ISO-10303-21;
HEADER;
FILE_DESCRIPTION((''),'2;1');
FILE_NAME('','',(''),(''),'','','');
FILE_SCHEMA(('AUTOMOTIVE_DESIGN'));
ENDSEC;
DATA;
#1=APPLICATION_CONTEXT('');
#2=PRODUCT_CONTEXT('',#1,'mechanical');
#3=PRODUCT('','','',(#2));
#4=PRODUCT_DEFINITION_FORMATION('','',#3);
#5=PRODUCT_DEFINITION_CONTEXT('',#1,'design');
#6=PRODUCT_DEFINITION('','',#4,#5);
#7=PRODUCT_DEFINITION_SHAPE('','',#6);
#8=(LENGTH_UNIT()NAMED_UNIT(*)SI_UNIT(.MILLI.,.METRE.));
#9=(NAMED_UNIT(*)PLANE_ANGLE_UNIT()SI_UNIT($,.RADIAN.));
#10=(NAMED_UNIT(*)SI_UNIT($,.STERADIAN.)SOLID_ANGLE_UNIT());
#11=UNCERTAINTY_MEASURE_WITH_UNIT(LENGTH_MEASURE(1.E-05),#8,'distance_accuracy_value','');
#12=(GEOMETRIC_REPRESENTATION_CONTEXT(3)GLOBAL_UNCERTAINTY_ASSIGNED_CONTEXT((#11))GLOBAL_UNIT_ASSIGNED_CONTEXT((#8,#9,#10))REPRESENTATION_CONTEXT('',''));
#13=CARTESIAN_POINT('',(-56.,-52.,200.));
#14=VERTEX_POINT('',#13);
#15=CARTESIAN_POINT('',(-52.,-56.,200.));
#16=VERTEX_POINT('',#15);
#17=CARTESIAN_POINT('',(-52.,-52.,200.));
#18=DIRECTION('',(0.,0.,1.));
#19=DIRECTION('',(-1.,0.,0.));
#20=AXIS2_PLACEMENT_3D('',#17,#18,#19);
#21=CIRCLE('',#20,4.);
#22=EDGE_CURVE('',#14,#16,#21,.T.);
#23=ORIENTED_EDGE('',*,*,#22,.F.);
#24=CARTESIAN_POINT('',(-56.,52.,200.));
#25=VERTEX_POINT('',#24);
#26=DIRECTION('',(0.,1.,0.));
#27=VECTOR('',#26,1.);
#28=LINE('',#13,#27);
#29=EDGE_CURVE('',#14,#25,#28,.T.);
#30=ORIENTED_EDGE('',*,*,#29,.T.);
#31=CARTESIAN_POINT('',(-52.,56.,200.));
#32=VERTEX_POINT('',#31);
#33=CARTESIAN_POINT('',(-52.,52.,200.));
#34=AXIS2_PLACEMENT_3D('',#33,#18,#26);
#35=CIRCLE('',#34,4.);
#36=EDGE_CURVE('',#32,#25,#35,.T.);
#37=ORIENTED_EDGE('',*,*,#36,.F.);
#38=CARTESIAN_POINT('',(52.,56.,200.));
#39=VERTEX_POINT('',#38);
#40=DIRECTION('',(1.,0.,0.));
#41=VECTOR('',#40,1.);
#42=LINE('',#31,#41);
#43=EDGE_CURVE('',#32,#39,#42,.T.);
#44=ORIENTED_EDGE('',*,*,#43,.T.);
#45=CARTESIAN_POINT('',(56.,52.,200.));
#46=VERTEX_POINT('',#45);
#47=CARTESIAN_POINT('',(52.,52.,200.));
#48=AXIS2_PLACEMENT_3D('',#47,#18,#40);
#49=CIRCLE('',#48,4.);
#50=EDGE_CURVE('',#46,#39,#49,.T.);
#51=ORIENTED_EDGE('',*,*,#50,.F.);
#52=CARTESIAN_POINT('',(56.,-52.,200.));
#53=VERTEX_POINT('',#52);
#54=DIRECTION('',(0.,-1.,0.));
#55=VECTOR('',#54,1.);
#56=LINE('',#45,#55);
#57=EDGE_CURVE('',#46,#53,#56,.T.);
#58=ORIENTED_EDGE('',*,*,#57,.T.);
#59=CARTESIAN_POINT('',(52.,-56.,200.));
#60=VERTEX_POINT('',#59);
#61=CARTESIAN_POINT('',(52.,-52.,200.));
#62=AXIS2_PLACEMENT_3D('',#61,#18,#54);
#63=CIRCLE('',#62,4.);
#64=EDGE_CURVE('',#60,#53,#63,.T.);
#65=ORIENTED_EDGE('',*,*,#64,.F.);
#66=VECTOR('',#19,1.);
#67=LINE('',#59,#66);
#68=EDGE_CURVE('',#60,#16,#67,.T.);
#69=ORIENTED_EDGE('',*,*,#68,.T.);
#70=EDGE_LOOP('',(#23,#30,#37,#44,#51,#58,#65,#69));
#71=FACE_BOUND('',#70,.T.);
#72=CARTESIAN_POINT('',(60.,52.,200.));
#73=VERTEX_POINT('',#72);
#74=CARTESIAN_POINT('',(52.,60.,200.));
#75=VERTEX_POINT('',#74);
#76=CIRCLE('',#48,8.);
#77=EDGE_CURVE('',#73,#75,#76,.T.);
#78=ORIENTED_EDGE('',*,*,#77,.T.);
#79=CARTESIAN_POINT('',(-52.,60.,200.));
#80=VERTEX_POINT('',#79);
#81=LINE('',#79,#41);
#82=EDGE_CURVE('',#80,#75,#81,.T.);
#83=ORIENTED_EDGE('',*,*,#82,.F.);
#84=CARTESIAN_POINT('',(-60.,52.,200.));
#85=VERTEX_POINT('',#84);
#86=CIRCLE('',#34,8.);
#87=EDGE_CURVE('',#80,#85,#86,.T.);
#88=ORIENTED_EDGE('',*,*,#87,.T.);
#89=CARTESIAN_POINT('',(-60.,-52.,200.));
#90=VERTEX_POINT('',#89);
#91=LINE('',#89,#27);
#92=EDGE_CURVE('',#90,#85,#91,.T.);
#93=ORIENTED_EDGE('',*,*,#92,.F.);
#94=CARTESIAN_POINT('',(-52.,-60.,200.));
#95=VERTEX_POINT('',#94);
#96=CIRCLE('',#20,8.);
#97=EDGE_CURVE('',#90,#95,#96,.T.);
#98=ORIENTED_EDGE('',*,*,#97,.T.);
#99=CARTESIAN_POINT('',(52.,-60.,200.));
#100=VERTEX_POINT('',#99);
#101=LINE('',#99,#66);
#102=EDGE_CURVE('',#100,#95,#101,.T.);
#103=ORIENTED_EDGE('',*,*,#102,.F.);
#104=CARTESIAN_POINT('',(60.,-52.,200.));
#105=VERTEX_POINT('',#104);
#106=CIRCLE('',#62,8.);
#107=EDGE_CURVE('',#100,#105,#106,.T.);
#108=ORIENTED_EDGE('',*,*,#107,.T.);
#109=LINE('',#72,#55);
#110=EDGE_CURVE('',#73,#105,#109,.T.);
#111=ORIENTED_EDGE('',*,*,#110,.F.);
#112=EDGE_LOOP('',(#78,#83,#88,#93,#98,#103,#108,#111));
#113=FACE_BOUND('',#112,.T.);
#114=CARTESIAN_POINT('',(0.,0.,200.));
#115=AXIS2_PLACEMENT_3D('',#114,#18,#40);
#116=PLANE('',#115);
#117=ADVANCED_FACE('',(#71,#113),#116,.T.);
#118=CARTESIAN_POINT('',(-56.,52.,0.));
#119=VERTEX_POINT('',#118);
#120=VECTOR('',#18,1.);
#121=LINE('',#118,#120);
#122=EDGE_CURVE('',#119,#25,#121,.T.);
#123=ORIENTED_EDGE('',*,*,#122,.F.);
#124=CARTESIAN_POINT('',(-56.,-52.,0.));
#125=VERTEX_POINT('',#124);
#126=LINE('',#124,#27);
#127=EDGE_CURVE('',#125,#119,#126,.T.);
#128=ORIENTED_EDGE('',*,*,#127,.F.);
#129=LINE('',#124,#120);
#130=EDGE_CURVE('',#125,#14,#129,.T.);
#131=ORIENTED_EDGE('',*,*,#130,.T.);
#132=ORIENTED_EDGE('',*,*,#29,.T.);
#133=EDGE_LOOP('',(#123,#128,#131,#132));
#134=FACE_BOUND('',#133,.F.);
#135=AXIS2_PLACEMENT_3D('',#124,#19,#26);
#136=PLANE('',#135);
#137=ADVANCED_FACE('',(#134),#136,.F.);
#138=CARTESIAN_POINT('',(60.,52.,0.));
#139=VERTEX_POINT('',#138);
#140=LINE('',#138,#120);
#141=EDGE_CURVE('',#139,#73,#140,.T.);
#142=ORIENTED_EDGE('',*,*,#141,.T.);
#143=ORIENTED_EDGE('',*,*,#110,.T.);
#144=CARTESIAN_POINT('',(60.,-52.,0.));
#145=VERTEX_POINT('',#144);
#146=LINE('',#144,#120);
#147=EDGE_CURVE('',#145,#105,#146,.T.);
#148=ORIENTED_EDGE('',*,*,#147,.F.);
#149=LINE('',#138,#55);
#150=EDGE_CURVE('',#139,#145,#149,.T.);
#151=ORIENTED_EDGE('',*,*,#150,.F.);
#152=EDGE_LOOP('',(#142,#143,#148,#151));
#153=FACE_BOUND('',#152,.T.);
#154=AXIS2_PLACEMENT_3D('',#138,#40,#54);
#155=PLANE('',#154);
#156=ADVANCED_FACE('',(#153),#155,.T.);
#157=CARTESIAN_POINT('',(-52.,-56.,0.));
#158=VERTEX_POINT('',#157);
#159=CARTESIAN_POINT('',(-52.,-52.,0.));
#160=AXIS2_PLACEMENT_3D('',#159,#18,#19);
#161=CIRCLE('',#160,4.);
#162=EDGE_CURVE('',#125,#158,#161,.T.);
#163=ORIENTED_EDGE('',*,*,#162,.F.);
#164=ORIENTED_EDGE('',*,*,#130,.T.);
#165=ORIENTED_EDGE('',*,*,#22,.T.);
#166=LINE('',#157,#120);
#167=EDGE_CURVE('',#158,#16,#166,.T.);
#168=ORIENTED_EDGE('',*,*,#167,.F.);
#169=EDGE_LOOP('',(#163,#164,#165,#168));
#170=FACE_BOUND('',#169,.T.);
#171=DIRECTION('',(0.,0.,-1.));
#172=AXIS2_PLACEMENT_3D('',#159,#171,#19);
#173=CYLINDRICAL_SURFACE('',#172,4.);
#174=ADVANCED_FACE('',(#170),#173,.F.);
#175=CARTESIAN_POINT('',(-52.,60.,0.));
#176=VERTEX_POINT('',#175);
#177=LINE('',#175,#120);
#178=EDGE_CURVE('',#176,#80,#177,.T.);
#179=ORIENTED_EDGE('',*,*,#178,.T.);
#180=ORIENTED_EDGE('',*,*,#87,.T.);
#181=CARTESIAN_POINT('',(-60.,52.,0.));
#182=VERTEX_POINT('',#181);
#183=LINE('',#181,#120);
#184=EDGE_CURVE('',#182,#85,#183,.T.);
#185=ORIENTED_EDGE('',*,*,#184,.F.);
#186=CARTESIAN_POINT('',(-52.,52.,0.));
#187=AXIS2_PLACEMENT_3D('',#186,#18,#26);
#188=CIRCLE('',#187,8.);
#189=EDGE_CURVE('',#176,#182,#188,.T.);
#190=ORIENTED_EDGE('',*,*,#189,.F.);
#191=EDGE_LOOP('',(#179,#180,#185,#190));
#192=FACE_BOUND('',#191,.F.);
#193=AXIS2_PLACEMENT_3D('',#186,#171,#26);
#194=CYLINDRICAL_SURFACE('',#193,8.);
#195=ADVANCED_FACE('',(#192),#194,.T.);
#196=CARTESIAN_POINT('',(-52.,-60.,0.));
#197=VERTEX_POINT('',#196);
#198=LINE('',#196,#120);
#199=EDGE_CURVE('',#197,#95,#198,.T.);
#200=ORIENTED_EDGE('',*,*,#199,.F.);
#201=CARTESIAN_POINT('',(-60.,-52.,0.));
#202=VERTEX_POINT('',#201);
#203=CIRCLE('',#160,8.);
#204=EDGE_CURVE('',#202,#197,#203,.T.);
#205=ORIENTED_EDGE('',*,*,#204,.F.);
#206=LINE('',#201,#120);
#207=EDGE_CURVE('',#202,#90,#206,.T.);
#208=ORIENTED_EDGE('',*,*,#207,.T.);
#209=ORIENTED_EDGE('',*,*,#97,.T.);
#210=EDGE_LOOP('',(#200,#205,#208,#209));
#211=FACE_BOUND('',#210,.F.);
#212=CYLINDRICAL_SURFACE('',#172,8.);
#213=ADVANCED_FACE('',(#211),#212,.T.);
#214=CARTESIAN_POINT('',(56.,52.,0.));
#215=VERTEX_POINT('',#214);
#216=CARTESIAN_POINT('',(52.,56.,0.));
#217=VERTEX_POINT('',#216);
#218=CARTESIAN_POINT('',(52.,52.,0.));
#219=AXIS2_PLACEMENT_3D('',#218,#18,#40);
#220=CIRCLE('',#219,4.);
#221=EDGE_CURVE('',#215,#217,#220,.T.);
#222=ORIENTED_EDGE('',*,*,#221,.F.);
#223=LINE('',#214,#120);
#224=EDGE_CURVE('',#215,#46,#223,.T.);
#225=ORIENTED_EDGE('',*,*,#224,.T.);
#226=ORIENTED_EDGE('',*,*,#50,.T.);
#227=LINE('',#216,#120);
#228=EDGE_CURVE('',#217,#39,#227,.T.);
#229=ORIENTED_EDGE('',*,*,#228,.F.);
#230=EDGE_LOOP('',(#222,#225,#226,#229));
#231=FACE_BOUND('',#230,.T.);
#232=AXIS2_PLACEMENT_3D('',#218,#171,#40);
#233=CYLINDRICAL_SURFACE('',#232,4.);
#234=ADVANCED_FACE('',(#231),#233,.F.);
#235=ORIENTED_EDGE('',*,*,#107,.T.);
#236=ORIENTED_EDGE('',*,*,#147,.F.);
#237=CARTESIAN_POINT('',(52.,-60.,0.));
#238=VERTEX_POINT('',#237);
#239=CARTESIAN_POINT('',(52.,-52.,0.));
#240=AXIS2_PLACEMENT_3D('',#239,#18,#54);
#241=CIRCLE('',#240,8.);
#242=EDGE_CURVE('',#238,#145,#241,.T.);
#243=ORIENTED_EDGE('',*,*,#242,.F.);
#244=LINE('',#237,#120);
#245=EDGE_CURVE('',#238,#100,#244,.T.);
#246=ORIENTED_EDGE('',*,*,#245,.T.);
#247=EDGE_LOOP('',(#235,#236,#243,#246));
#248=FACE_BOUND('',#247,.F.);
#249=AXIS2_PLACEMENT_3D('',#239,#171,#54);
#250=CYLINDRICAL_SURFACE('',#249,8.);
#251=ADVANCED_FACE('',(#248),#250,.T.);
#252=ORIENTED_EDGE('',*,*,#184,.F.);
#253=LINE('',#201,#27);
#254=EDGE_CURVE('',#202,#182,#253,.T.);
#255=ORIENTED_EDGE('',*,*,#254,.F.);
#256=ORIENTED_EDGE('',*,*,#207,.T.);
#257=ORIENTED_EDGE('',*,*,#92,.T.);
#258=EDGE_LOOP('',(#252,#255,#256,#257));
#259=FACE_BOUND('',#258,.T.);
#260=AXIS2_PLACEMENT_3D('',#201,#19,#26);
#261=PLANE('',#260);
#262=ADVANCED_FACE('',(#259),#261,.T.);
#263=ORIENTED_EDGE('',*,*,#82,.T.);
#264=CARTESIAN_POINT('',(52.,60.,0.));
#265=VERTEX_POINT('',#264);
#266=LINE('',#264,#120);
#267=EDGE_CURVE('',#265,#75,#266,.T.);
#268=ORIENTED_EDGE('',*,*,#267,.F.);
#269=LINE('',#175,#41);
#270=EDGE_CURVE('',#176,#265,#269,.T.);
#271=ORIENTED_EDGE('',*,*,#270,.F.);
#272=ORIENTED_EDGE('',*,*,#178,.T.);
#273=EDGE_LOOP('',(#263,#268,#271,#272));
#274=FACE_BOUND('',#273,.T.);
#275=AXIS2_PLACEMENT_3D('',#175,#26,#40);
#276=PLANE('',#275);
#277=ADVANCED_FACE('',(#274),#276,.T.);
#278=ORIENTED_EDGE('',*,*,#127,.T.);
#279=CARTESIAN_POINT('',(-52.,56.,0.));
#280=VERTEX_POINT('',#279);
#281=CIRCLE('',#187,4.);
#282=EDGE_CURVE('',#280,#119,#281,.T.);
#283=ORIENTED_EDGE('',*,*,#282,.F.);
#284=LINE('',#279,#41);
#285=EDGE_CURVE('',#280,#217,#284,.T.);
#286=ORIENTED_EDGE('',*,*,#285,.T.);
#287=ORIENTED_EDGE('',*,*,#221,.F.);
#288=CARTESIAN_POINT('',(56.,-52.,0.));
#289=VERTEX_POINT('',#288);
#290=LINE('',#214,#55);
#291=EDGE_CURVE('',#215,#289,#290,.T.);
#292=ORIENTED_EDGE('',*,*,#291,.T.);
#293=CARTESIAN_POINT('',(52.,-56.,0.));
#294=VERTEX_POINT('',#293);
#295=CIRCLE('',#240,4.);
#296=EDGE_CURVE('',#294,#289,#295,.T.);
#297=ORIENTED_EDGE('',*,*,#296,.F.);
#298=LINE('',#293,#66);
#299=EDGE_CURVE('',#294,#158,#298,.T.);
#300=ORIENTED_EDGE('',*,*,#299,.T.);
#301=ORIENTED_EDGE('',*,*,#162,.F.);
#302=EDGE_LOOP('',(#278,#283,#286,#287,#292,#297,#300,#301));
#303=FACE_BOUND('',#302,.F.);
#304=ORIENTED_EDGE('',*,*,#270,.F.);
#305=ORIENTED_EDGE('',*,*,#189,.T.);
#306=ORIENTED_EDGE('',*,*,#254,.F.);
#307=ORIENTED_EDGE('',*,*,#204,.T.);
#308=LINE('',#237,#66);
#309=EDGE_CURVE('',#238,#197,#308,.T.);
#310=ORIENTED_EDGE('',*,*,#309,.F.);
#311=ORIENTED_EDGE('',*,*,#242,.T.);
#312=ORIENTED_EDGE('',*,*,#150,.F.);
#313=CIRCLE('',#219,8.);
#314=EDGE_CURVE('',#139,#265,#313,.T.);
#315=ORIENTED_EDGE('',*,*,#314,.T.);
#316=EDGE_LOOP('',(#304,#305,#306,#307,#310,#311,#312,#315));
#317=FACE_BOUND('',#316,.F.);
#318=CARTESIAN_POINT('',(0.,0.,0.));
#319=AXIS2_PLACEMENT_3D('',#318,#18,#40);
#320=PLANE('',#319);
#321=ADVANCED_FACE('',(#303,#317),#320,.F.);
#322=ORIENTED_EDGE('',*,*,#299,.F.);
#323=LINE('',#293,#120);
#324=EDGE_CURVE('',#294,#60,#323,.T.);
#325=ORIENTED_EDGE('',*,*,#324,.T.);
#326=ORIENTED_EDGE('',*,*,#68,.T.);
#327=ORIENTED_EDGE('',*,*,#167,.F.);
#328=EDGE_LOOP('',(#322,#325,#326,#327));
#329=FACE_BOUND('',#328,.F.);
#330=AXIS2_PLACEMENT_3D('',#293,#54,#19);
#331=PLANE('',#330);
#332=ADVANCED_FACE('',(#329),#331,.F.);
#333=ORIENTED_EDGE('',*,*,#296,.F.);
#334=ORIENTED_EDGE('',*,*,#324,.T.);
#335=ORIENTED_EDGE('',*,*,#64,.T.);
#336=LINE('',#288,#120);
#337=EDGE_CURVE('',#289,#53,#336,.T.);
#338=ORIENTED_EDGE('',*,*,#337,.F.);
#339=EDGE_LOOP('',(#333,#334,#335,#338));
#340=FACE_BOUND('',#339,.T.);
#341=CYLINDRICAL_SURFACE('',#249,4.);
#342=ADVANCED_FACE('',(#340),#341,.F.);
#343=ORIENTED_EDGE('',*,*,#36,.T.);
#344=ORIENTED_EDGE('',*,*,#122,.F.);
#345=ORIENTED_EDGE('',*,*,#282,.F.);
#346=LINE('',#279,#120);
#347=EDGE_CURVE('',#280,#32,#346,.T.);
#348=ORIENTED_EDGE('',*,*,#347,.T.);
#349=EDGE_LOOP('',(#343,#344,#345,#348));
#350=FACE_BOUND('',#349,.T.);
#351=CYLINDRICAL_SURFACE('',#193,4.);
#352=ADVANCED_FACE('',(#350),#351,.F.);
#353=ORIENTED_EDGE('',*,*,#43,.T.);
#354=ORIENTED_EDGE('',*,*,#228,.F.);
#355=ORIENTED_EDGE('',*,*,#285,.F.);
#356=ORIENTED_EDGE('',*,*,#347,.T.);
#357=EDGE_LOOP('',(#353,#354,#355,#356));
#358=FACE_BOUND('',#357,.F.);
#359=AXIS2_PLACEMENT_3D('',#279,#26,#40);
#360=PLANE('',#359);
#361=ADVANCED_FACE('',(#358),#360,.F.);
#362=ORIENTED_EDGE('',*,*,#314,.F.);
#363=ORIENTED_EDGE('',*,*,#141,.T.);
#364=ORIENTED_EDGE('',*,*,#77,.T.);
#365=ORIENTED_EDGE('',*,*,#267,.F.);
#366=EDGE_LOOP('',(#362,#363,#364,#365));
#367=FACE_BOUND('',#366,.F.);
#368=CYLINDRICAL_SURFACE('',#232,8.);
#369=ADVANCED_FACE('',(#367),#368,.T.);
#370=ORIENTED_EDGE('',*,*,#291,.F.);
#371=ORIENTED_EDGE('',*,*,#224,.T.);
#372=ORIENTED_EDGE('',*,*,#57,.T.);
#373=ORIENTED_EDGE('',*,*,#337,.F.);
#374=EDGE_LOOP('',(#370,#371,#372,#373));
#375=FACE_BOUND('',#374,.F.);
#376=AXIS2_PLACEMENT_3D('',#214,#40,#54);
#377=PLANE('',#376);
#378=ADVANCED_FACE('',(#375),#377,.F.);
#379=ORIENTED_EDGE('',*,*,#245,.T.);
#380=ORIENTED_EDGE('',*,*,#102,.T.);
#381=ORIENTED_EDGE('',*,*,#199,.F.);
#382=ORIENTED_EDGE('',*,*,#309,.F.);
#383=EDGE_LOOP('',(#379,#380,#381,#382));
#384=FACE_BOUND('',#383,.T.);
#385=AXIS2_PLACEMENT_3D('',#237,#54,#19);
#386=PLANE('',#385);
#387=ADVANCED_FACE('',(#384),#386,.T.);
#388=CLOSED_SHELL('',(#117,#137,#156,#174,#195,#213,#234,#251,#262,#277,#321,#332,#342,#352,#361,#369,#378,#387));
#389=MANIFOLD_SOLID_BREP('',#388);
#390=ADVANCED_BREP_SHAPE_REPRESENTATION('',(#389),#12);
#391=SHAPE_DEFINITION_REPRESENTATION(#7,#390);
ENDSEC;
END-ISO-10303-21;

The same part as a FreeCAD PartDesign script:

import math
import FreeCAD as App
import Part
import Sketcher

V = App.Vector
Q = App.Units.Quantity

doc = App.newDocument("Part")
params = doc.addObject("Spreadsheet::Sheet", "Params")
for row, (alias, value) in enumerate([
    ("sketch1_radius", "8 mm"),
    ("sketch1_radius2", "4 mm"),
    ("pad1_length", "200 mm"),
], start=1):
    params.set(f"A{row}", alias)
    params.set(f"B{row}", "=" + value)
    params.setAlias(f"B{row}", alias)

body = doc.addObject("PartDesign::Body", "Body")

sketch1 = body.newObject("Sketcher::SketchObject", "Sketch")
sketch1.AttachmentSupport = (doc.getObject("XY_Plane"), [""])
sketch1.MapMode = "FlatFace"
sketch1.addGeometry([
    Part.LineSegment(V(-60, 52, 0), V(-60, -52, 0)),
    Part.ArcOfCircle(Part.Circle(V(-52, -52, 0), V(0, 0, 1), 8), math.radians(180), math.radians(270)),
    Part.LineSegment(V(-52, -60, 0), V(52, -60, 0)),
    Part.ArcOfCircle(Part.Circle(V(52, -52, 0), V(0, 0, 1), 8), math.radians(-90), math.radians(0)),
    Part.LineSegment(V(60, -52, 0), V(60, 52, 0)),
    Part.ArcOfCircle(Part.Circle(V(52, 52, 0), V(0, 0, 1), 8), math.radians(0), math.radians(90)),
    Part.LineSegment(V(52, 60, 0), V(-52, 60, 0)),
    Part.ArcOfCircle(Part.Circle(V(-52, 52, 0), V(0, 0, 1), 8), math.radians(90), math.radians(180)),
    Part.ArcOfCircle(Part.Circle(V(-52, 52, 0), V(0, 0, 1), 4), math.radians(90), math.radians(180)),
    Part.LineSegment(V(-52, 56, 0), V(52, 56, 0)),
    Part.ArcOfCircle(Part.Circle(V(52, 52, 0), V(0, 0, 1), 4), math.radians(0), math.radians(90)),
    Part.LineSegment(V(56, 52, 0), V(56, -52, 0)),
    Part.ArcOfCircle(Part.Circle(V(52, -52, 0), V(0, 0, 1), 4), math.radians(-90), math.radians(0)),
    Part.LineSegment(V(52, -56, 0), V(-52, -56, 0)),
    Part.ArcOfCircle(Part.Circle(V(-52, -52, 0), V(0, 0, 1), 4), math.radians(180), math.radians(270)),
    Part.LineSegment(V(-56, -52, 0), V(-56, 52, 0)),
], False)
sketch1.addConstraint([
    Sketcher.Constraint("Tangent", 0, 2, 1, 1),
    Sketcher.Constraint("Tangent", 1, 2, 2, 1),
    Sketcher.Constraint("Tangent", 2, 2, 3, 1),
    Sketcher.Constraint("Tangent", 3, 2, 4, 1),
    Sketcher.Constraint("Tangent", 4, 2, 5, 1),
    Sketcher.Constraint("Tangent", 5, 2, 6, 1),
    Sketcher.Constraint("Tangent", 6, 2, 7, 1),
    Sketcher.Constraint("Tangent", 7, 2, 0, 1),
    Sketcher.Constraint("Tangent", 8, 1, 9, 1),
    Sketcher.Constraint("Tangent", 9, 2, 10, 2),
    Sketcher.Constraint("Tangent", 10, 1, 11, 1),
    Sketcher.Constraint("Tangent", 11, 2, 12, 2),
    Sketcher.Constraint("Tangent", 12, 1, 13, 1),
    Sketcher.Constraint("Tangent", 13, 2, 14, 2),
    Sketcher.Constraint("Tangent", 14, 1, 15, 1),
    Sketcher.Constraint("Tangent", 15, 2, 8, 2),
    Sketcher.Constraint("Vertical", 0),
    Sketcher.Constraint("Horizontal", 2),
    Sketcher.Constraint("Vertical", 4),
    Sketcher.Constraint("Horizontal", 6),
    Sketcher.Constraint("Horizontal", 9),
    Sketcher.Constraint("Vertical", 11),
    Sketcher.Constraint("Horizontal", 13),
    Sketcher.Constraint("Vertical", 15),
    Sketcher.Constraint("Coincident", 8, 3, 7, 3),
    Sketcher.Constraint("Coincident", 10, 3, 5, 3),
    Sketcher.Constraint("Coincident", 12, 3, 3, 3),
    Sketcher.Constraint("Equal", 1, 3),
    Sketcher.Constraint("Equal", 3, 5),
    Sketcher.Constraint("Equal", 5, 7),
    Sketcher.Constraint("Equal", 12, 14),
    Sketcher.Constraint("Symmetric", 1, 3, 5, 3, -1, 1),
    Sketcher.Constraint("Equal", 13, 0),
    Sketcher.Constraint("Radius", 1, Q("8 mm")),
    Sketcher.Constraint("Radius", 8, Q("4 mm")),
    Sketcher.Constraint("DistanceX", 0, 2, -1, 1, Q("60 mm")),
])
sketch1.setExpression("Constraints[33]", "Params.sketch1_radius")
sketch1.setExpression("Constraints[34]", "Params.sketch1_radius2")
pad1 = body.newObject("PartDesign::Pad", "Pad")
pad1.Profile = sketch1
pad1.setExpression("Length", "Params.pad1_length")

doc.recompute()
